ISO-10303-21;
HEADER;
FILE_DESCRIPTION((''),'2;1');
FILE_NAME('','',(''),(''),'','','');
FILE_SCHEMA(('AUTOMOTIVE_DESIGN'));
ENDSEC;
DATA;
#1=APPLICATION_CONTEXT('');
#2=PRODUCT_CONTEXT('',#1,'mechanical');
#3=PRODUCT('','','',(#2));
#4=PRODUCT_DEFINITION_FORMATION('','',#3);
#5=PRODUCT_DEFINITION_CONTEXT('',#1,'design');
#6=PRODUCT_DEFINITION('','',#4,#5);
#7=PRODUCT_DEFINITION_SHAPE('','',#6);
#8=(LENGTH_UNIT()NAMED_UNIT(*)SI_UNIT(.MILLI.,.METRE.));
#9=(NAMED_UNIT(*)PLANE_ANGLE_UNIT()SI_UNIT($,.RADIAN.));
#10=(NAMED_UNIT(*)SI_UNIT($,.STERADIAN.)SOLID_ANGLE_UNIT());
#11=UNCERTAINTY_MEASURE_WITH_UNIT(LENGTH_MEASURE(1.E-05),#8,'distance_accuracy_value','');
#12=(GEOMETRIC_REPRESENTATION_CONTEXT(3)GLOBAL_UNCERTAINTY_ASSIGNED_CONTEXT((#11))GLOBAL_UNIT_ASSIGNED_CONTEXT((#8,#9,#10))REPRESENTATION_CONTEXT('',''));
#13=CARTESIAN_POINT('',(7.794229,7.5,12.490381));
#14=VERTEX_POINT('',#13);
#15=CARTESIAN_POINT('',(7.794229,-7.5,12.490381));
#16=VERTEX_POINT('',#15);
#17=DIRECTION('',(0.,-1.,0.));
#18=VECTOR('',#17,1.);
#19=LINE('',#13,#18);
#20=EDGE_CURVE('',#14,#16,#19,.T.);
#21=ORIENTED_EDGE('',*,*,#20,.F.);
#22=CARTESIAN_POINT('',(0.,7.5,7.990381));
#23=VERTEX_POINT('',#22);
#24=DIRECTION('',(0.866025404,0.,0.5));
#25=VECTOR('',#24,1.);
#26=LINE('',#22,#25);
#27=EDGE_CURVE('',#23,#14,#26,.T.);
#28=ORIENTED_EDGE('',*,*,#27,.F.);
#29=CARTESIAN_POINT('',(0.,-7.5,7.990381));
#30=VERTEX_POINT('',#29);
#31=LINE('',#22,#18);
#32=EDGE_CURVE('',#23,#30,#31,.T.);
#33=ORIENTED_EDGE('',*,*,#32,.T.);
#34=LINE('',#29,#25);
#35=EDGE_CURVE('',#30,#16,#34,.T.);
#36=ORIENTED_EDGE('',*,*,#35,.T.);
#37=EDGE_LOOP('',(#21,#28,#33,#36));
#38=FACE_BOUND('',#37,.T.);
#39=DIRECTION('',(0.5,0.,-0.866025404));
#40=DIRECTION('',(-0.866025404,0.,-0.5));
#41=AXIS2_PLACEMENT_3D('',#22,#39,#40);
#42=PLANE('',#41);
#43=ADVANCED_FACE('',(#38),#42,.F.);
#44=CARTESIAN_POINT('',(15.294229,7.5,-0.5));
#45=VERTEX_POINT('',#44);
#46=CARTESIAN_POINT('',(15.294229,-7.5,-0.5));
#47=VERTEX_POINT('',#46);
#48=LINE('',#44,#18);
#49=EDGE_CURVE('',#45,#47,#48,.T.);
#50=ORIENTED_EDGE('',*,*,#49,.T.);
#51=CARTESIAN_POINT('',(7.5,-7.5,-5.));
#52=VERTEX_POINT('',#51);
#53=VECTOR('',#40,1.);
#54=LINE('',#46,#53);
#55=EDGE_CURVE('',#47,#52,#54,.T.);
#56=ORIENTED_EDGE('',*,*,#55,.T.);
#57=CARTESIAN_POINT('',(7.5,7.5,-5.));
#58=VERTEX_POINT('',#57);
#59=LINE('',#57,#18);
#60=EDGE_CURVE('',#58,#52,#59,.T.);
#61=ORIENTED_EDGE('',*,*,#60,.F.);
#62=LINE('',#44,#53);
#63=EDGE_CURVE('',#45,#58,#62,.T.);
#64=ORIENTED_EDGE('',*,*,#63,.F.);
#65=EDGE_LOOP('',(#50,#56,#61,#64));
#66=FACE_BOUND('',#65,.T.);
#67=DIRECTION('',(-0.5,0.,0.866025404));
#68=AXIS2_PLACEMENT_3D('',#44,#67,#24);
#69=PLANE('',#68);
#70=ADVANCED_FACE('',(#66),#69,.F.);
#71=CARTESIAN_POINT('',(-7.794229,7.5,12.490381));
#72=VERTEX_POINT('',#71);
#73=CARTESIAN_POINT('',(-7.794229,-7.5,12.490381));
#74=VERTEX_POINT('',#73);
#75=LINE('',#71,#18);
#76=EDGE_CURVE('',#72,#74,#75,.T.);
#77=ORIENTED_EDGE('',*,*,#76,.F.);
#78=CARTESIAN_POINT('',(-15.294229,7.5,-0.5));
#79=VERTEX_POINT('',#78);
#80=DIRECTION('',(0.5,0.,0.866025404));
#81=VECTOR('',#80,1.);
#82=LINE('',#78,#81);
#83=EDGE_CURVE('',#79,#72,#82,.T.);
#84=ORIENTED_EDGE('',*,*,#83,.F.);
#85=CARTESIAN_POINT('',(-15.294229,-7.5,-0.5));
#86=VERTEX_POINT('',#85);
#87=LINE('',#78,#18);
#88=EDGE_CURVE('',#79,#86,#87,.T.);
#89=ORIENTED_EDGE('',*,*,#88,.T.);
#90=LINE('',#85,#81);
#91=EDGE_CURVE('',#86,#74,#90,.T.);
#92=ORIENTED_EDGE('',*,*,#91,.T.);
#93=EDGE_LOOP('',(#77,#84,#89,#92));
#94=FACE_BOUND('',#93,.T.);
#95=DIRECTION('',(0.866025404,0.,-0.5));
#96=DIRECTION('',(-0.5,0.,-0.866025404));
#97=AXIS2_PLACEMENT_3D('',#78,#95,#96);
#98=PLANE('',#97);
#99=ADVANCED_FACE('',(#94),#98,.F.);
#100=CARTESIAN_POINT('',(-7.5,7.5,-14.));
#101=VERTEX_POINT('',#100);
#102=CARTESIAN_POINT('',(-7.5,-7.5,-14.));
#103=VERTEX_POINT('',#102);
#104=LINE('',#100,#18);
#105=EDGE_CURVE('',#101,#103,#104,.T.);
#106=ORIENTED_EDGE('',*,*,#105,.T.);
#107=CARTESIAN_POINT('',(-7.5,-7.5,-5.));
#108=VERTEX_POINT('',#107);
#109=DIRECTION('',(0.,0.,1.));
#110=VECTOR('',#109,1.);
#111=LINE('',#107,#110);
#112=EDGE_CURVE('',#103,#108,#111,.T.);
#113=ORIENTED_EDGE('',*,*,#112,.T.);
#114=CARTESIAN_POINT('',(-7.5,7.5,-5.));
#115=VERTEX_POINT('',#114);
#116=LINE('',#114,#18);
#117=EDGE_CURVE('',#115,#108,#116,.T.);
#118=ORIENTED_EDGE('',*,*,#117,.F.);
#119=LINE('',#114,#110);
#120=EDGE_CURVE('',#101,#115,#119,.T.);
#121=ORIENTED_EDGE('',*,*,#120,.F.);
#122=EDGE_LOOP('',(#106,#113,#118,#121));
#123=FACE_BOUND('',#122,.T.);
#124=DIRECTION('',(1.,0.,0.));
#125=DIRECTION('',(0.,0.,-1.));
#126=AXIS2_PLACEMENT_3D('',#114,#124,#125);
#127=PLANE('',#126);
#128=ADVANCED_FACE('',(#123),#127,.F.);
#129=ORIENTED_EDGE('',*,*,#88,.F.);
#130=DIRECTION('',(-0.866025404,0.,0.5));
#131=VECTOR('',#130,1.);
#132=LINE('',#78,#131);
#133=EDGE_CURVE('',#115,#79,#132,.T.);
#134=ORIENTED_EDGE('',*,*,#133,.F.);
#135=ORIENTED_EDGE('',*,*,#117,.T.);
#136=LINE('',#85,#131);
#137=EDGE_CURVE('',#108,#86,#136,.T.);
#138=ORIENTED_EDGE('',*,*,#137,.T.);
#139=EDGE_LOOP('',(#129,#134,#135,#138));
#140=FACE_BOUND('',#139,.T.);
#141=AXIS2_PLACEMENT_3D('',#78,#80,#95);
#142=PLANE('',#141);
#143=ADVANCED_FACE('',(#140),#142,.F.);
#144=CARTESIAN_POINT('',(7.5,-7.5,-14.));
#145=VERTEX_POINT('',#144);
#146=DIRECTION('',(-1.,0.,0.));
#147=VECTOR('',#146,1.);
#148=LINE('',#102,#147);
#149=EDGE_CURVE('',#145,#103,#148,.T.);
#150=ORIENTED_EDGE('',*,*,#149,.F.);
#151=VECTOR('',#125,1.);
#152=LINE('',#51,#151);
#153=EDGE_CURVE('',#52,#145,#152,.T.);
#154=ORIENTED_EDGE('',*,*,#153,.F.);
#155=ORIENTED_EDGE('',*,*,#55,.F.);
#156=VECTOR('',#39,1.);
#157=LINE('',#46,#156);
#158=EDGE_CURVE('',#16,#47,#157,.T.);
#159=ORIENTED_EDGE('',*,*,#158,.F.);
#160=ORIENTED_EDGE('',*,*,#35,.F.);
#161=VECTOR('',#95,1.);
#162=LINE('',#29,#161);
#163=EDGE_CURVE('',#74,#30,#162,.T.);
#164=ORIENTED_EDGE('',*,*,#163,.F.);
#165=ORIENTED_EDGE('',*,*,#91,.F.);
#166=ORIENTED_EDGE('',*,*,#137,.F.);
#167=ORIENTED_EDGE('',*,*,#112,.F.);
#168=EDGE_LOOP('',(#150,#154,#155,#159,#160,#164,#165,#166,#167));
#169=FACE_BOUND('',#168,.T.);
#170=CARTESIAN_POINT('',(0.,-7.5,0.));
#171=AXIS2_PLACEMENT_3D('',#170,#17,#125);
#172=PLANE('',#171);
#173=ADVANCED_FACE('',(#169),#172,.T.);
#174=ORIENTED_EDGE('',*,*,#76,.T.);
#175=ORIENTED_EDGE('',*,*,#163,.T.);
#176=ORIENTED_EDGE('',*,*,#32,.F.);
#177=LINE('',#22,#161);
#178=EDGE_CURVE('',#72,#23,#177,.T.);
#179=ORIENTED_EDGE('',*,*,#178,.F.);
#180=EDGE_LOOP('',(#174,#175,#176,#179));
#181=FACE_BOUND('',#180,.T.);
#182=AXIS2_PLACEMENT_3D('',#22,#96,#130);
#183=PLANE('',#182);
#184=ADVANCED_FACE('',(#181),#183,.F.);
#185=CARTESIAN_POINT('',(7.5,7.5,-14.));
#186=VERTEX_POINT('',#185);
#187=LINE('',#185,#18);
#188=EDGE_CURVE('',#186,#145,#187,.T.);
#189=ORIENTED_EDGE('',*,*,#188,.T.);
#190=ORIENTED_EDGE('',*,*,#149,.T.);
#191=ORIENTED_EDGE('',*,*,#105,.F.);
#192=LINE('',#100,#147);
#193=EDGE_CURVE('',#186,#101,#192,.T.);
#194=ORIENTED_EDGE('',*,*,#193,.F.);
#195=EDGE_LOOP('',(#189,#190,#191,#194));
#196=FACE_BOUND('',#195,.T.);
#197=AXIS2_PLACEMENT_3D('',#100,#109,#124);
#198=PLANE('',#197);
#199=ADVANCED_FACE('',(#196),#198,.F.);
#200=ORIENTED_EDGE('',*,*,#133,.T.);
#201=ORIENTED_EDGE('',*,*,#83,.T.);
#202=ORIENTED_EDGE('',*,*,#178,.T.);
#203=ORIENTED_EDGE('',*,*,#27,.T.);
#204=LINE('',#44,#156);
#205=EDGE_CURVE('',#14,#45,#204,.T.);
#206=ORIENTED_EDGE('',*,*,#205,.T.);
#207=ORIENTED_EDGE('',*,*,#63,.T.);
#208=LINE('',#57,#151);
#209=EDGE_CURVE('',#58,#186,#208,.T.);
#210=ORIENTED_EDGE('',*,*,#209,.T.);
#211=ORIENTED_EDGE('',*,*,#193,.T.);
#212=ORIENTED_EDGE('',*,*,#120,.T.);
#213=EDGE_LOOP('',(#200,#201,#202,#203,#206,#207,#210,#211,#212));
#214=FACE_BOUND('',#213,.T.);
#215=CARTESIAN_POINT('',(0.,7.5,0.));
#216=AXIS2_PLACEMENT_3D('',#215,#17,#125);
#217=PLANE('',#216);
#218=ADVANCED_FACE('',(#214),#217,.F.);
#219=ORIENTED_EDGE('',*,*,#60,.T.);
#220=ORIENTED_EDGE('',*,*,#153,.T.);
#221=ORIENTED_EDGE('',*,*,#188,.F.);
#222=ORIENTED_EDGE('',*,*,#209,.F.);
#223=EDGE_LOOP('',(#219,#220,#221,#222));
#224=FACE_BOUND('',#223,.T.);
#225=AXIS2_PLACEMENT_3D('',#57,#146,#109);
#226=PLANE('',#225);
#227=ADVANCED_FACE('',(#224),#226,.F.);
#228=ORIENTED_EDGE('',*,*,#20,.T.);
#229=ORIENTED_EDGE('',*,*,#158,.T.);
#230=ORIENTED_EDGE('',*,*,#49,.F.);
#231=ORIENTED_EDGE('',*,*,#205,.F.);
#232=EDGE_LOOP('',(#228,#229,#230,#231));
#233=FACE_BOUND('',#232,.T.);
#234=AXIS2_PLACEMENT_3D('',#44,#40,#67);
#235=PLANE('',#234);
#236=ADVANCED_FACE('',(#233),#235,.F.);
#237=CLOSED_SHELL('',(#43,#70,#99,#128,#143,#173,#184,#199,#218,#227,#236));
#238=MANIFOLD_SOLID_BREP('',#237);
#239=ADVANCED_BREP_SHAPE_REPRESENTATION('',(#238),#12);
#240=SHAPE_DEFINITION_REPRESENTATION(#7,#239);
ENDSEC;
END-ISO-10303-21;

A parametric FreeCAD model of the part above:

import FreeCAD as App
import Part
import Sketcher
from FreeCAD import Vector
Q = App.Units.Quantity


def add_polygon(sketch, points):
    """Adds a closed chain of lines whose ends are joined by coincident constraints."""
    first, n = sketch.GeometryCount, len(points)
    for a, b in zip(points, points[1:] + points[:1]):
        sketch.addGeometry(Part.LineSegment(App.Vector(*a, 0), App.Vector(*b, 0)), False)
    for i in range(n):
        sketch.addConstraint(Sketcher.Constraint("Coincident", first + i, 2, first + (i + 1) % n, 1))

doc = App.newDocument("Part")
body = doc.addObject("PartDesign::Body", "Body")

# Sketch on XZ plane
sketch1 = body.newObject("Sketcher::SketchObject", "Sketch")
sketch1.AttachmentSupport = (doc.getObject("XZ_Plane"), [""])
sketch1.MapMode = "FlatFace"
add_polygon(sketch1, [(15, 0), (8, -5), (8, -14), (-8, -14), (-8, -5), (-15, 0), (-8, 12), (0, 8), (8, 12)])  # lines 0-8
sketch1.addConstraint([
    Sketcher.Constraint("Vertical", 1),
    Sketcher.Constraint("Horizontal", 2),
    Sketcher.Constraint("Vertical", 3),
    Sketcher.Constraint("Symmetric", 0, 2, 3, 2, -2),
    Sketcher.Constraint("Symmetric", 5, 2, 7, 2, -2),
    Sketcher.Constraint("Symmetric", 4, 2, 8, 2, -2),
    Sketcher.Constraint("PointOnObject", 6, 2, -2),
    Sketcher.Constraint("Perpendicular", 4, 5),
    Sketcher.Constraint("Perpendicular", 5, 6),
    Sketcher.Constraint("Equal", 4, 6),
    Sketcher.Constraint("DistanceX", 2, 2, 2, 1, 15.0),
    Sketcher.Constraint("DistanceY", 1, 2, 1, 1, 9.0),
    Sketcher.Constraint("Angle", 0, Q("-150 deg")),
    Sketcher.Constraint("Distance", 0, 9.0),
    Sketcher.Constraint("DistanceY", 0, 2, -1, 1, 5.0),
])
pad1 = body.newObject("PartDesign::Pad", "Pad")
pad1.Profile = sketch1
pad1.Length = 15
pad1.Midplane = True

doc.recompute()
